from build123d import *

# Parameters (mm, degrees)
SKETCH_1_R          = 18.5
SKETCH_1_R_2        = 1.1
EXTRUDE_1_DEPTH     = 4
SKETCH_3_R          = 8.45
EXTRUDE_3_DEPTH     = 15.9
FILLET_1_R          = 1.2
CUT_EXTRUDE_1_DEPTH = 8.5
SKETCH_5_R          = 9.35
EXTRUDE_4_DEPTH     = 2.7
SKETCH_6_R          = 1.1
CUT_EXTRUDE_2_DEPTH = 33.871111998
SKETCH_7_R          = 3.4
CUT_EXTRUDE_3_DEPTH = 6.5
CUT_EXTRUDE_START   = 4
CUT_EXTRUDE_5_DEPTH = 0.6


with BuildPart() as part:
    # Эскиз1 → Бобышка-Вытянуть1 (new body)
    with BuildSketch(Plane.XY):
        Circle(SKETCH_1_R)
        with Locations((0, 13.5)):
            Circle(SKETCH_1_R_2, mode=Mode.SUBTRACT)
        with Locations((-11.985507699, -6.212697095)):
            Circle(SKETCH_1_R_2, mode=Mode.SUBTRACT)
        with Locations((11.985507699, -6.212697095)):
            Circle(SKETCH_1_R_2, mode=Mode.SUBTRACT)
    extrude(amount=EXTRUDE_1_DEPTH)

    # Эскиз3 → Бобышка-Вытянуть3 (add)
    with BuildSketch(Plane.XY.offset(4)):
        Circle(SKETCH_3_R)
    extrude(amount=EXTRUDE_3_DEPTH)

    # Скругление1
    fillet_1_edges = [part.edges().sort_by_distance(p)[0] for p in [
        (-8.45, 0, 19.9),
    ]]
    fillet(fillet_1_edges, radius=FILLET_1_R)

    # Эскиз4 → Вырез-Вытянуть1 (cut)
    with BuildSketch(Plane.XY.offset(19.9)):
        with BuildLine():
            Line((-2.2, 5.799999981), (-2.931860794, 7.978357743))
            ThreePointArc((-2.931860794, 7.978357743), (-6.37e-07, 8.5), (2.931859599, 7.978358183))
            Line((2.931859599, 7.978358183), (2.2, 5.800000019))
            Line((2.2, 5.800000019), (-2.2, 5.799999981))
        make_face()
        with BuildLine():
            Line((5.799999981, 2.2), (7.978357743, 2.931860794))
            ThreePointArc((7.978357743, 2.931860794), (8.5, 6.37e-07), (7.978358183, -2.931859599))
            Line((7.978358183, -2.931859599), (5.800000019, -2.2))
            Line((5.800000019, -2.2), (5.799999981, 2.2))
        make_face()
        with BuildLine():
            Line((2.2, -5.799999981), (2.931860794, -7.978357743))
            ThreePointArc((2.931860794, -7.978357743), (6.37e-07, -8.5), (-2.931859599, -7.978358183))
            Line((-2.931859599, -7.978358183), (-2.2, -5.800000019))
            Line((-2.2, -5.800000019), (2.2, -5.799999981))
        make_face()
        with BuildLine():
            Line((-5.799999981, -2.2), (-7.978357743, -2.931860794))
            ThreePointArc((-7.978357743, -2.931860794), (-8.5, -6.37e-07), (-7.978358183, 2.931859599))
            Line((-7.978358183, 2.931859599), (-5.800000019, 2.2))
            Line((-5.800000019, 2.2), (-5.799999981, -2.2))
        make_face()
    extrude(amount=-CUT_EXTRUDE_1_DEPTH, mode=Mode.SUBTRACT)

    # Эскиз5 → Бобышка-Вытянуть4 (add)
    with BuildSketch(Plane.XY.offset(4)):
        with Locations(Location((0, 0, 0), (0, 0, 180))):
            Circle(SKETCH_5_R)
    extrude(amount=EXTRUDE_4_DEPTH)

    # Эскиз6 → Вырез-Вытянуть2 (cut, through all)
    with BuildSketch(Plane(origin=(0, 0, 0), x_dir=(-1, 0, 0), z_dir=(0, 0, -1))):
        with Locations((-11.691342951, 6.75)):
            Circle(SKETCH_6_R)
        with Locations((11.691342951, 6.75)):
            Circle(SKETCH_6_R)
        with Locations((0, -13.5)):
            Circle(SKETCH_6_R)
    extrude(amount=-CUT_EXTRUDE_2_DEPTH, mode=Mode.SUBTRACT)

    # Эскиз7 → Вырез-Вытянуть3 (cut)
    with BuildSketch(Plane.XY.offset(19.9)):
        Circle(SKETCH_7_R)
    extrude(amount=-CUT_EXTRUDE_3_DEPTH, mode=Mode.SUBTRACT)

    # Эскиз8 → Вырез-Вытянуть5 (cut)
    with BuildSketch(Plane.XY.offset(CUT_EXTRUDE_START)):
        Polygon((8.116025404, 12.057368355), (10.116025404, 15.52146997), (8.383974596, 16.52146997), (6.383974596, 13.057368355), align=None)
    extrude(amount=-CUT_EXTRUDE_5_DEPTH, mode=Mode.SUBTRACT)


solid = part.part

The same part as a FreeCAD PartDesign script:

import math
import FreeCAD as App
import Part
import Sketcher
from FreeCAD import Vector
Q = App.Units.Quantity


def edges_at(feature, points):
    """Names of the edges that pass closest to the given points."""
    edges = feature.Shape.Edges
    near = lambda p: min(range(len(edges)), key=lambda i: edges[i].distToShape(Part.Vertex(*p))[0])
    return sorted({f"Edge{near(p) + 1}" for p in points})

doc = App.newDocument("Part")
body = doc.addObject("PartDesign::Body", "Body")

# Sketch on XY plane
sketch1 = body.newObject("Sketcher::SketchObject", "Sketch")
sketch1.AttachmentSupport = (doc.getObject("XY_Plane"), [""])
sketch1.MapMode = "FlatFace"
sketch1.addGeometry(Part.Circle(Vector(0, 0, 0), Vector(0, 0, 1), 18.5), False)
sketch1.addGeometry(Part.Circle(Vector(-11.985508, -6.212697, 0), Vector(0, 0, 1), 1.1), False)
sketch1.addGeometry(Part.Circle(Vector(11.985508, -6.212697, 0), Vector(0, 0, 1), 1.1), False)
sketch1.addGeometry(Part.Circle(Vector(0, 13.5, 0), Vector(0, 0, 1), 1.1), False)
sketch1.addConstraint(Sketcher.Constraint("Coincident", 0, 3, -1, 1))
sketch1.addConstraint(Sketcher.Constraint("Equal", 1, 2))
sketch1.addConstraint(Sketcher.Constraint("Equal", 2, 3))
sketch1.addConstraint(Sketcher.Constraint("Symmetric", 1, 3, 2, 3, -2))
sketch1.addConstraint(Sketcher.Constraint("PointOnObject", 3, 3, -2))
sketch1.addConstraint(Sketcher.Constraint("Diameter", 0, 37.0))
sketch1.addConstraint(Sketcher.Constraint("Diameter", 1, 2.2))
sketch1.addConstraint(Sketcher.Constraint("DistanceY", -1, 1, 3, 3, 13.5))
sketch1.addConstraint(Sketcher.Constraint("DistanceX", 1, 3, -1, 1, 11.985508))
sketch1.addConstraint(Sketcher.Constraint("DistanceY", 1, 3, -1, 1, 6.212697))
pad1 = body.newObject("PartDesign::Pad", "Pad")
pad1.Profile = sketch1
pad1.Length = 4

# Sketch on XY plane
sketch2 = body.newObject("Sketcher::SketchObject", "Sketch001")
sketch2.AttachmentSupport = (doc.getObject("XY_Plane"), [""])
sketch2.MapMode = "FlatFace"
sketch2.AttachmentOffset = App.Placement(Vector(0, 0, 4), App.Rotation())
sketch2.addGeometry(Part.Circle(Vector(0, 0, 0), Vector(0, 0, 1), 8.45), False)
sketch2.addConstraint(Sketcher.Constraint("Coincident", 0, 3, -1, 1))
sketch2.addConstraint(Sketcher.Constraint("Diameter", 0, 16.9))
pad2 = body.newObject("PartDesign::Pad", "Pad001")
pad2.Profile = sketch2
pad2.Length = 15.9
doc.recompute()

fillet = body.newObject("PartDesign::Fillet", "Fillet")
fillet.Base = (pad2, edges_at(pad2, [(-8.45, 0, 19.9)]))
fillet.Radius = 1.2

# Sketch on XY plane
sketch3 = body.newObject("Sketcher::SketchObject", "Sketch002")
sketch3.AttachmentSupport = (doc.getObject("XY_Plane"), [""])
sketch3.MapMode = "FlatFace"
sketch3.AttachmentOffset = App.Placement(Vector(0, 0, 19.9), App.Rotation())
sketch3.addGeometry(Part.LineSegment(Vector(-2.931861, 7.978358, 0), Vector(-2.2, 5.8, 0)), False)
sketch3.addGeometry(Part.LineSegment(Vector(-2.2, 5.8, 0), Vector(2.2, 5.8, 0)), False)
sketch3.addGeometry(Part.LineSegment(Vector(2.2, 5.8, 0), Vector(2.93186, 7.978358, 0)), False)
sketch3.addGeometry(Part.ArcOfCircle(Part.Circle(Vector(0, 0, 0), Vector(0, 0, 1), 8.5), math.radians(69.822803), math.radians(110.177205)), False)
sketch3.addGeometry(Part.LineSegment(Vector(7.978358, 2.931861, 0), Vector(5.8, 2.2, 0)), False)
sketch3.addGeometry(Part.LineSegment(Vector(5.8, 2.2, 0), Vector(5.8, -2.2, 0)), False)
sketch3.addGeometry(Part.LineSegment(Vector(5.8, -2.2, 0), Vector(7.978358, -2.93186, 0)), False)
sketch3.addGeometry(Part.ArcOfCircle(Part.Circle(Vector(0, 0, 0), Vector(0, 0, 1), 8.5), math.radians(-20.177197), math.radians(20.177205)), False)
sketch3.addGeometry(Part.LineSegment(Vector(2.931861, -7.978358, 0), Vector(2.2, -5.8, 0)), False)
sketch3.addGeometry(Part.LineSegment(Vector(2.2, -5.8, 0), Vector(-2.2, -5.8, 0)), False)
sketch3.addGeometry(Part.LineSegment(Vector(-2.2, -5.8, 0), Vector(-2.93186, -7.978358, 0)), False)
sketch3.addGeometry(Part.ArcOfCircle(Part.Circle(Vector(0, 0, 0), Vector(0, 0, 1), 8.5), math.radians(-110.177197), math.radians(-69.822795)), False)
sketch3.addGeometry(Part.LineSegment(Vector(-7.978358, -2.931861, 0), Vector(-5.8, -2.2, 0)), False)
sketch3.addGeometry(Part.LineSegment(Vector(-5.8, -2.2, 0), Vector(-5.8, 2.2, 0)), False)
sketch3.addGeometry(Part.LineSegment(Vector(-5.8, 2.2, 0), Vector(-7.978358, 2.93186, 0)), False)
sketch3.addGeometry(Part.ArcOfCircle(Part.Circle(Vector(0, 0, 0), Vector(0, 0, 1), 8.5), math.radians(159.822803), math.radians(200.177205)), False)
sketch3.addConstraint(Sketcher.Constraint("Coincident", 0, 2, 1, 1))
sketch3.addConstraint(Sketcher.Constraint("Coincident", 1, 2, 2, 1))
sketch3.addConstraint(Sketcher.Constraint("Coincident", 2, 2, 3, 1))
sketch3.addConstraint(Sketcher.Constraint("Coincident", 3, 2, 0, 1))
sketch3.addConstraint(Sketcher.Constraint("Coincident", 4, 2, 5, 1))
sketch3.addConstraint(Sketcher.Constraint("Coincident", 5, 2, 6, 1))
sketch3.addConstraint(Sketcher.Constraint("Coincident", 6, 2, 7, 1))
sketch3.addConstraint(Sketcher.Constraint("Coincident", 7, 2, 4, 1))
sketch3.addConstraint(Sketcher.Constraint("Coincident", 8, 2, 9, 1))
sketch3.addConstraint(Sketcher.Constraint("Coincident", 9, 2, 10, 1))
sketch3.addConstraint(Sketcher.Constraint("Coincident", 10, 2, 11, 1))
sketch3.addConstraint(Sketcher.Constraint("Coincident", 11, 2, 8, 1))
sketch3.addConstraint(Sketcher.Constraint("Coincident", 12, 2, 13, 1))
sketch3.addConstraint(Sketcher.Constraint("Coincident", 13, 2, 14, 1))
sketch3.addConstraint(Sketcher.Constraint("Coincident", 14, 2, 15, 1))
sketch3.addConstraint(Sketcher.Constraint("Coincident", 15, 2, 12, 1))
sketch3.addConstraint(Sketcher.Constraint("Horizontal", 1))
sketch3.addConstraint(Sketcher.Constraint("Vertical", 5))
sketch3.addConstraint(Sketcher.Constraint("Horizontal", 9))
sketch3.addConstraint(Sketcher.Constraint("Vertical", 13))
sketch3.addConstraint(Sketcher.Constraint("Coincident", 3, 3, -1, 1))
sketch3.addConstraint(Sketcher.Constraint("Coincident", 7, 3, -1, 1))
sketch3.addConstraint(Sketcher.Constraint("Coincident", 11, 3, -1, 1))
sketch3.addConstraint(Sketcher.Constraint("Coincident", 15, 3, -1, 1))
sketch3.addConstraint(Sketcher.Constraint("Equal", 3, 7))
sketch3.addConstraint(Sketcher.Constraint("Equal", 7, 11))
sketch3.addConstraint(Sketcher.Constraint("Equal", 11, 15))
sketch3.addConstraint(Sketcher.Constraint("Symmetric", 0, 2, 8, 2, -1, 1))
sketch3.addConstraint(Sketcher.Constraint("Symmetric", 4, 2, 12, 2, -1, 1))
sketch3.addConstraint(Sketcher.Constraint("Perpendicular", 0, 4))
sketch3.addConstraint(Sketcher.Constraint("Perpendicular", 2, 6))
sketch3.addConstraint(Sketcher.Constraint("Perpendicular", 4, 8))
sketch3.addConstraint(Sketcher.Constraint("Perpendicular", 6, 10))
sketch3.addConstraint(Sketcher.Constraint("Perpendicular", 8, 12))
sketch3.addConstraint(Sketcher.Constraint("Perpendicular", 10, 14))
sketch3.addConstraint(Sketcher.Constraint("Horizontal", 2, 2, 3, 2))
sketch3.addConstraint(Sketcher.Constraint("Horizontal", 10, 2, 11, 2))
sketch3.addConstraint(Sketcher.Constraint("Horizontal", 5, 2, 12, 2))
sketch3.addConstraint(Sketcher.Constraint("Horizontal", 4, 2, 13, 2))
sketch3.addConstraint(Sketcher.Constraint("Horizontal", 7, 2, 14, 2))
sketch3.addConstraint(Sketcher.Constraint("Equal", 9, 5))
sketch3.addConstraint(Sketcher.Constraint("Equal", 2, 4))
sketch3.addConstraint(Sketcher.Constraint("Radius", 3, 8.5))
sketch3.addConstraint(Sketcher.Constraint("DistanceX", 1, 1, 1, 2, 4.4))
sketch3.addConstraint(Sketcher.Constraint("DistanceY", -1, 1, 0, 2, 5.8))
sketch3.addConstraint(Sketcher.Constraint("DistanceX", 2, 2, 7, 2, 5.046498))
pocket1 = body.newObject("PartDesign::Pocket", "Pocket")
pocket1.Profile = sketch3
pocket1.Length = 8.5

# Sketch on XY plane
sketch4 = body.newObject("Sketcher::SketchObject", "Sketch003")
sketch4.AttachmentSupport = (doc.getObject("XY_Plane"), [""])
sketch4.MapMode = "FlatFace"
sketch4.AttachmentOffset = App.Placement(Vector(0, 0, 4), App.Rotation())
sketch4.addGeometry(Part.Circle(Vector(0, 0, 0), Vector(0, 0, 1), 9.35), False)
sketch4.addConstraint(Sketcher.Constraint("Coincident", 0, 3, -1, 1))
sketch4.addConstraint(Sketcher.Constraint("Diameter", 0, 18.7))
pad3 = body.newObject("PartDesign::Pad", "Pad002")
pad3.Profile = sketch4
pad3.Length = 2.7

# Sketch on XY plane
sketch5 = body.newObject("Sketcher::SketchObject", "Sketch004")
sketch5.AttachmentSupport = (doc.getObject("XY_Plane"), [""])
sketch5.MapMode = "FlatFace"
sketch5.addGeometry(Part.Circle(Vector(11.691343, 6.75, 0), Vector(0, 0, 1), 1.1), False)
sketch5.addGeometry(Part.Circle(Vector(-11.691343, 6.75, 0), Vector(0, 0, 1), 1.1), False)
sketch5.addGeometry(Part.Circle(Vector(0, -13.5, 0), Vector(0, 0, 1), 1.1), False)
sketch5.addConstraint(Sketcher.Constraint("Equal", 0, 1))
sketch5.addConstraint(Sketcher.Constraint("Equal", 1, 2))
sketch5.addConstraint(Sketcher.Constraint("Symmetric", 0, 3, 1, 3, -2))
sketch5.addConstraint(Sketcher.Constraint("PointOnObject", 2, 3, -2))
sketch5.addConstraint(Sketcher.Constraint("Diameter", 0, 2.2))
sketch5.addConstraint(Sketcher.Constraint("DistanceY", 2, 3, -1, 1, 13.5))
sketch5.addConstraint(Sketcher.Constraint("DistanceY", -1, 1, 0, 3, 6.75))
sketch5.addConstraint(Sketcher.Constraint("DistanceX", -1, 1, 0, 3, 11.691343))
pocket2 = body.newObject("PartDesign::Pocket", "Pocket001")
pocket2.Profile = sketch5
pocket2.Type = "ThroughAll"
pocket2.Reversed = True

# Sketch on XY plane
sketch6 = body.newObject("Sketcher::SketchObject", "Sketch005")
sketch6.AttachmentSupport = (doc.getObject("XY_Plane"), [""])
sketch6.MapMode = "FlatFace"
sketch6.AttachmentOffset = App.Placement(Vector(0, 0, 19.9), App.Rotation())
sketch6.addGeometry(Part.Circle(Vector(0, 0, 0), Vector(0, 0, 1), 3.4), False)
sketch6.addConstraint(Sketcher.Constraint("Coincident", 0, 3, -1, 1))
sketch6.addConstraint(Sketcher.Constraint("Diameter", 0, 6.8))
pocket3 = body.newObject("PartDesign::Pocket", "Pocket002")
pocket3.Profile = sketch6
pocket3.Length = 6.5

# Sketch on XY plane
sketch7 = body.newObject("Sketcher::SketchObject", "Sketch006")
sketch7.AttachmentSupport = (doc.getObject("XY_Plane"), [""])
sketch7.MapMode = "FlatFace"
sketch7.AttachmentOffset = App.Placement(Vector(0, 0, 4), App.Rotation())
sketch7.addGeometry(Part.LineSegment(Vector(8.116025, 12.057368, 0), Vector(10.116025, 15.52147, 0)), False)
sketch7.addGeometry(Part.LineSegment(Vector(10.116025, 15.52147, 0), Vector(8.383975, 16.52147, 0)), False)
sketch7.addGeometry(Part.LineSegment(Vector(8.383975, 16.52147, 0), Vector(6.383975, 13.057368, 0)), False)
sketch7.addGeometry(Part.LineSegment(Vector(6.383975, 13.057368, 0), Vector(8.116025, 12.057368, 0)), False)
sketch7.addConstraint(Sketcher.Constraint("Coincident", 0, 2, 1, 1))
sketch7.addConstraint(Sketcher.Constraint("Coincident", 1, 2, 2, 1))
sketch7.addConstraint(Sketcher.Constraint("Coincident", 2, 2, 3, 1))
sketch7.addConstraint(Sketcher.Constraint("Coincident", 3, 2, 0, 1))
sketch7.addConstraint(Sketcher.Constraint("Perpendicular", 0, 1))
sketch7.addConstraint(Sketcher.Constraint("Perpendicular", 1, 2))
sketch7.addConstraint(Sketcher.Constraint("Perpendicular", 2, 3))
sketch7.addConstraint(Sketcher.Constraint("Angle", 0, Q("60 deg")))
sketch7.addConstraint(Sketcher.Constraint("Distance", 0, 4.0))
sketch7.addConstraint(Sketcher.Constraint("Distance", 1, 2.0))
sketch7.addConstraint(Sketcher.Constraint("DistanceY", -1, 1, 0, 2, 15.52147))
sketch7.addConstraint(Sketcher.Constraint("DistanceX", -1, 1, 0, 2, 10.116025))
pocket4 = body.newObject("PartDesign::Pocket", "Pocket003")
pocket4.Profile = sketch7
pocket4.Length = 0.6

doc.recompute()
